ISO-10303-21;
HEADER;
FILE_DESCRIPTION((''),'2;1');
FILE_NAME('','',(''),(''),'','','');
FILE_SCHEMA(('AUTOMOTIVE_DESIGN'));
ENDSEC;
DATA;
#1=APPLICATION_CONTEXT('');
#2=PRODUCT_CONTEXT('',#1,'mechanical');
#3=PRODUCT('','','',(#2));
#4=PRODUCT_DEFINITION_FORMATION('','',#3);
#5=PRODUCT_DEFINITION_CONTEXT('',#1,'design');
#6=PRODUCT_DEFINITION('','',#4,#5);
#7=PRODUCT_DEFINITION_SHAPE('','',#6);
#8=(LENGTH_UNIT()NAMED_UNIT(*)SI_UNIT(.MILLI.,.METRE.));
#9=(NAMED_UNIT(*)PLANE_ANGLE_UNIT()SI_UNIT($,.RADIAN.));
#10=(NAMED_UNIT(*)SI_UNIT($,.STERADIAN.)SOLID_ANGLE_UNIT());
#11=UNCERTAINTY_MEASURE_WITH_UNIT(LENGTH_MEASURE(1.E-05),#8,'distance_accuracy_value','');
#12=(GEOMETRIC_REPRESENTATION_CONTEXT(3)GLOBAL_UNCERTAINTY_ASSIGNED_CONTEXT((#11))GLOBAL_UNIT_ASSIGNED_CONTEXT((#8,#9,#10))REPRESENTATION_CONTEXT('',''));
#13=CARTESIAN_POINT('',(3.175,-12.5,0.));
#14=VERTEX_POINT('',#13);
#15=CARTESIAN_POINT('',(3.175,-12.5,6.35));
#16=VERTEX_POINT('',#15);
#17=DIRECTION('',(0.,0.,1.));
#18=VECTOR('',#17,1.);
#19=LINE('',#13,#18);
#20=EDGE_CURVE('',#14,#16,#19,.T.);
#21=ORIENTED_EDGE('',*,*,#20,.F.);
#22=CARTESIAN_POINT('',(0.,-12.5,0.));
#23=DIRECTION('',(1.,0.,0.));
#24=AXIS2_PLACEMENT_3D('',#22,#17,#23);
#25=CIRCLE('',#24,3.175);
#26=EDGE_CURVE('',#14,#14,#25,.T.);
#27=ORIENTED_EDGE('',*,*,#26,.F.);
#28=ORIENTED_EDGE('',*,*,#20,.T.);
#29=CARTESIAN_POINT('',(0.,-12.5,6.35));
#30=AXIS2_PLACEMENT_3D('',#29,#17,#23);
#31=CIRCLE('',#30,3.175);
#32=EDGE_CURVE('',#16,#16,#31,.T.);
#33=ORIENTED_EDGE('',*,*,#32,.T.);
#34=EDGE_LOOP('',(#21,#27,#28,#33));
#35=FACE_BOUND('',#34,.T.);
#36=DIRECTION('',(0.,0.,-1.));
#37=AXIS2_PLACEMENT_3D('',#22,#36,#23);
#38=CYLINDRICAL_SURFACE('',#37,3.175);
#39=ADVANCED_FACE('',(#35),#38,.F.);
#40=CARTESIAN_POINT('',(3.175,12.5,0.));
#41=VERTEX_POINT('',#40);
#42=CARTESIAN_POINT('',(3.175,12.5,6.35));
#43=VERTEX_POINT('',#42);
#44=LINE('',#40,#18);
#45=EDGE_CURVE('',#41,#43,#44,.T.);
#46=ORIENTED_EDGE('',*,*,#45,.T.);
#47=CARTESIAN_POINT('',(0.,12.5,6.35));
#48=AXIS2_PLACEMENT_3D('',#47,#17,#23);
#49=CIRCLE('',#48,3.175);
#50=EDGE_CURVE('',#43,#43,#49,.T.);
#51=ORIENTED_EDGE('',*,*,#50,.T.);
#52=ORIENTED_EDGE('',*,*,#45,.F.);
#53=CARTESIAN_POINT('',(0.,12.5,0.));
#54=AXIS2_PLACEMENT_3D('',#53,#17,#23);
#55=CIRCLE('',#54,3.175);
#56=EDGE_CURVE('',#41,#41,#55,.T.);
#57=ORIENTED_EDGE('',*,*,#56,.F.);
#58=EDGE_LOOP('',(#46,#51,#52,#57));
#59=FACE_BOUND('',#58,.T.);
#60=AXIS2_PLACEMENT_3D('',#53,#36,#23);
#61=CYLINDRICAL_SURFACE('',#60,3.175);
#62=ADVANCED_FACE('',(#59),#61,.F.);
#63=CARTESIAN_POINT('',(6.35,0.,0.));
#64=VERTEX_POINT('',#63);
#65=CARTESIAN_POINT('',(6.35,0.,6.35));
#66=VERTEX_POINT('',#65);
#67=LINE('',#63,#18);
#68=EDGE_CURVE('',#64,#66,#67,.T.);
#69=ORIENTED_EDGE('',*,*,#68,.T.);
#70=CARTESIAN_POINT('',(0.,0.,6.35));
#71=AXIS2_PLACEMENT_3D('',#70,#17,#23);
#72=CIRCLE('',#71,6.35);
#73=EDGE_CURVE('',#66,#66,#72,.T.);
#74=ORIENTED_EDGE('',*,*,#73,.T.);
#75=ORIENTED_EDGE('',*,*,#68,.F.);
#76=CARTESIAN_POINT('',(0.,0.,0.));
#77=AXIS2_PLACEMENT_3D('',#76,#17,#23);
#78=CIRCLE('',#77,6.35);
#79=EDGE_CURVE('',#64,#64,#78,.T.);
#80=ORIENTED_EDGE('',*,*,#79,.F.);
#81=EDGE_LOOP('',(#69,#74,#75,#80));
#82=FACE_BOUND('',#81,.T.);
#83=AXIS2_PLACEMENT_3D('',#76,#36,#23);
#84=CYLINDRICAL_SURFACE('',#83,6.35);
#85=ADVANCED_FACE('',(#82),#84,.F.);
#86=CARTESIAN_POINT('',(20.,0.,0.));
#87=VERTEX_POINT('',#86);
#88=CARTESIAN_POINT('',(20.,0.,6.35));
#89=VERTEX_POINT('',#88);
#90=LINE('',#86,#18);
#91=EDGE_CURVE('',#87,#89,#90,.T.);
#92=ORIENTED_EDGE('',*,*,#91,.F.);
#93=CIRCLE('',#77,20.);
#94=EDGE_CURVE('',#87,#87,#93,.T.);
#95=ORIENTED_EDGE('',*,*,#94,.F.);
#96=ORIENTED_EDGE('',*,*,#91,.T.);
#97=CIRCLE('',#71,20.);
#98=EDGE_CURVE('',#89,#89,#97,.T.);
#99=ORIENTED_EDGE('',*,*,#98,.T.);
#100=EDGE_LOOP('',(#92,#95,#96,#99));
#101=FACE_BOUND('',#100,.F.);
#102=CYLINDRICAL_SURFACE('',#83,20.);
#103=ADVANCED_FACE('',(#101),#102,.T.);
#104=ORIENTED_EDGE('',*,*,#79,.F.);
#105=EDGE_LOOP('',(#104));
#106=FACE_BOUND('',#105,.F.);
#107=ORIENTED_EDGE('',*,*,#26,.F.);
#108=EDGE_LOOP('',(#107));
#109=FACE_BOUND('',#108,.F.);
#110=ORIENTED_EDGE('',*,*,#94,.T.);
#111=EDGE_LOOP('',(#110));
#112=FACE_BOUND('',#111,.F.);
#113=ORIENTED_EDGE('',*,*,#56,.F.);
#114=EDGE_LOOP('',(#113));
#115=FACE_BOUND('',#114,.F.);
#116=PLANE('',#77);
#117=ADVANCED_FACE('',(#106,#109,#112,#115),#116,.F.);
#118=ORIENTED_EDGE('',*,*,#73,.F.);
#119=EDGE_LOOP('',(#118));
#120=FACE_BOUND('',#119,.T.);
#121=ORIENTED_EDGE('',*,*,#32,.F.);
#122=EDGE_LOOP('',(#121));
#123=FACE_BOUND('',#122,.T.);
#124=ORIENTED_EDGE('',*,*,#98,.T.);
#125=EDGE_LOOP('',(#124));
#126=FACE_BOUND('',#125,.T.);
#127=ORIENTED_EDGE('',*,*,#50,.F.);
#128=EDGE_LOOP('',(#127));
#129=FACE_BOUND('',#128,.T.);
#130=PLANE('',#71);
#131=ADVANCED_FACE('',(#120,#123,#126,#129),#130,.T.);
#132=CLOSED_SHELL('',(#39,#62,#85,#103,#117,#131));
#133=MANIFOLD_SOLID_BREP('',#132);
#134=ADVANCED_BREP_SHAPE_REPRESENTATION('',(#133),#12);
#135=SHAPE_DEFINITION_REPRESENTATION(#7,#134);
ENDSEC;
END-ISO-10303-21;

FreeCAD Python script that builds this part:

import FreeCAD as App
import Part
import Sketcher

V = App.Vector
Q = App.Units.Quantity

doc = App.newDocument("Part")
body = doc.addObject("PartDesign::Body", "Body")

sketch1 = body.newObject("Sketcher::SketchObject", "Sketch")
sketch1.AttachmentSupport = (doc.getObject("XY_Plane"), [""])
sketch1.MapMode = "FlatFace"
sketch1.addGeometry([
    Part.Circle(V(0, 0, 0), V(0, 0, 1), 20),
    Part.Circle(V(0, 0, 0), V(0, 0, 1), 6),
], False)
sketch1.addConstraint([
    Sketcher.Constraint("Coincident", 0, 3, -1, 1),
    Sketcher.Constraint("Coincident", 1, 3, -1, 1),
    Sketcher.Constraint("Diameter", 1, Q("0.5 in")),
    Sketcher.Constraint("Diameter", 0, 40.0),
])
pad1 = body.newObject("PartDesign::Pad", "Pad")
pad1.Profile = sketch1
pad1.Length = Q("0.25 in")

sketch2 = body.newObject("Sketcher::SketchObject", "Sketch001")
sketch2.AttachmentSupport = (doc.getObject("XY_Plane"), [""])
sketch2.MapMode = "FlatFace"
sketch2.addGeometry([
    Part.Circle(V(0, 12.5, 0), V(0, 0, 1), 3.2),
    Part.Circle(V(0, -12.5, 0), V(0, 0, 1), 3.2),
], False)
sketch2.addConstraint([
    Sketcher.Constraint("Equal", 0, 1),
    Sketcher.Constraint("Symmetric", 0, 3, 1, 3, -1, 1),
    Sketcher.Constraint("PointOnObject", 0, 3, -2),
    Sketcher.Constraint("Diameter", 0, Q("0.25 in")),
    Sketcher.Constraint("DistanceY", -1, 1, 0, 3, 12.5),
])
pocket1 = body.newObject("PartDesign::Pocket", "Pocket")
pocket1.Profile = sketch2
pocket1.Type = "ThroughAll"
pocket1.Reversed = True

doc.recompute()
